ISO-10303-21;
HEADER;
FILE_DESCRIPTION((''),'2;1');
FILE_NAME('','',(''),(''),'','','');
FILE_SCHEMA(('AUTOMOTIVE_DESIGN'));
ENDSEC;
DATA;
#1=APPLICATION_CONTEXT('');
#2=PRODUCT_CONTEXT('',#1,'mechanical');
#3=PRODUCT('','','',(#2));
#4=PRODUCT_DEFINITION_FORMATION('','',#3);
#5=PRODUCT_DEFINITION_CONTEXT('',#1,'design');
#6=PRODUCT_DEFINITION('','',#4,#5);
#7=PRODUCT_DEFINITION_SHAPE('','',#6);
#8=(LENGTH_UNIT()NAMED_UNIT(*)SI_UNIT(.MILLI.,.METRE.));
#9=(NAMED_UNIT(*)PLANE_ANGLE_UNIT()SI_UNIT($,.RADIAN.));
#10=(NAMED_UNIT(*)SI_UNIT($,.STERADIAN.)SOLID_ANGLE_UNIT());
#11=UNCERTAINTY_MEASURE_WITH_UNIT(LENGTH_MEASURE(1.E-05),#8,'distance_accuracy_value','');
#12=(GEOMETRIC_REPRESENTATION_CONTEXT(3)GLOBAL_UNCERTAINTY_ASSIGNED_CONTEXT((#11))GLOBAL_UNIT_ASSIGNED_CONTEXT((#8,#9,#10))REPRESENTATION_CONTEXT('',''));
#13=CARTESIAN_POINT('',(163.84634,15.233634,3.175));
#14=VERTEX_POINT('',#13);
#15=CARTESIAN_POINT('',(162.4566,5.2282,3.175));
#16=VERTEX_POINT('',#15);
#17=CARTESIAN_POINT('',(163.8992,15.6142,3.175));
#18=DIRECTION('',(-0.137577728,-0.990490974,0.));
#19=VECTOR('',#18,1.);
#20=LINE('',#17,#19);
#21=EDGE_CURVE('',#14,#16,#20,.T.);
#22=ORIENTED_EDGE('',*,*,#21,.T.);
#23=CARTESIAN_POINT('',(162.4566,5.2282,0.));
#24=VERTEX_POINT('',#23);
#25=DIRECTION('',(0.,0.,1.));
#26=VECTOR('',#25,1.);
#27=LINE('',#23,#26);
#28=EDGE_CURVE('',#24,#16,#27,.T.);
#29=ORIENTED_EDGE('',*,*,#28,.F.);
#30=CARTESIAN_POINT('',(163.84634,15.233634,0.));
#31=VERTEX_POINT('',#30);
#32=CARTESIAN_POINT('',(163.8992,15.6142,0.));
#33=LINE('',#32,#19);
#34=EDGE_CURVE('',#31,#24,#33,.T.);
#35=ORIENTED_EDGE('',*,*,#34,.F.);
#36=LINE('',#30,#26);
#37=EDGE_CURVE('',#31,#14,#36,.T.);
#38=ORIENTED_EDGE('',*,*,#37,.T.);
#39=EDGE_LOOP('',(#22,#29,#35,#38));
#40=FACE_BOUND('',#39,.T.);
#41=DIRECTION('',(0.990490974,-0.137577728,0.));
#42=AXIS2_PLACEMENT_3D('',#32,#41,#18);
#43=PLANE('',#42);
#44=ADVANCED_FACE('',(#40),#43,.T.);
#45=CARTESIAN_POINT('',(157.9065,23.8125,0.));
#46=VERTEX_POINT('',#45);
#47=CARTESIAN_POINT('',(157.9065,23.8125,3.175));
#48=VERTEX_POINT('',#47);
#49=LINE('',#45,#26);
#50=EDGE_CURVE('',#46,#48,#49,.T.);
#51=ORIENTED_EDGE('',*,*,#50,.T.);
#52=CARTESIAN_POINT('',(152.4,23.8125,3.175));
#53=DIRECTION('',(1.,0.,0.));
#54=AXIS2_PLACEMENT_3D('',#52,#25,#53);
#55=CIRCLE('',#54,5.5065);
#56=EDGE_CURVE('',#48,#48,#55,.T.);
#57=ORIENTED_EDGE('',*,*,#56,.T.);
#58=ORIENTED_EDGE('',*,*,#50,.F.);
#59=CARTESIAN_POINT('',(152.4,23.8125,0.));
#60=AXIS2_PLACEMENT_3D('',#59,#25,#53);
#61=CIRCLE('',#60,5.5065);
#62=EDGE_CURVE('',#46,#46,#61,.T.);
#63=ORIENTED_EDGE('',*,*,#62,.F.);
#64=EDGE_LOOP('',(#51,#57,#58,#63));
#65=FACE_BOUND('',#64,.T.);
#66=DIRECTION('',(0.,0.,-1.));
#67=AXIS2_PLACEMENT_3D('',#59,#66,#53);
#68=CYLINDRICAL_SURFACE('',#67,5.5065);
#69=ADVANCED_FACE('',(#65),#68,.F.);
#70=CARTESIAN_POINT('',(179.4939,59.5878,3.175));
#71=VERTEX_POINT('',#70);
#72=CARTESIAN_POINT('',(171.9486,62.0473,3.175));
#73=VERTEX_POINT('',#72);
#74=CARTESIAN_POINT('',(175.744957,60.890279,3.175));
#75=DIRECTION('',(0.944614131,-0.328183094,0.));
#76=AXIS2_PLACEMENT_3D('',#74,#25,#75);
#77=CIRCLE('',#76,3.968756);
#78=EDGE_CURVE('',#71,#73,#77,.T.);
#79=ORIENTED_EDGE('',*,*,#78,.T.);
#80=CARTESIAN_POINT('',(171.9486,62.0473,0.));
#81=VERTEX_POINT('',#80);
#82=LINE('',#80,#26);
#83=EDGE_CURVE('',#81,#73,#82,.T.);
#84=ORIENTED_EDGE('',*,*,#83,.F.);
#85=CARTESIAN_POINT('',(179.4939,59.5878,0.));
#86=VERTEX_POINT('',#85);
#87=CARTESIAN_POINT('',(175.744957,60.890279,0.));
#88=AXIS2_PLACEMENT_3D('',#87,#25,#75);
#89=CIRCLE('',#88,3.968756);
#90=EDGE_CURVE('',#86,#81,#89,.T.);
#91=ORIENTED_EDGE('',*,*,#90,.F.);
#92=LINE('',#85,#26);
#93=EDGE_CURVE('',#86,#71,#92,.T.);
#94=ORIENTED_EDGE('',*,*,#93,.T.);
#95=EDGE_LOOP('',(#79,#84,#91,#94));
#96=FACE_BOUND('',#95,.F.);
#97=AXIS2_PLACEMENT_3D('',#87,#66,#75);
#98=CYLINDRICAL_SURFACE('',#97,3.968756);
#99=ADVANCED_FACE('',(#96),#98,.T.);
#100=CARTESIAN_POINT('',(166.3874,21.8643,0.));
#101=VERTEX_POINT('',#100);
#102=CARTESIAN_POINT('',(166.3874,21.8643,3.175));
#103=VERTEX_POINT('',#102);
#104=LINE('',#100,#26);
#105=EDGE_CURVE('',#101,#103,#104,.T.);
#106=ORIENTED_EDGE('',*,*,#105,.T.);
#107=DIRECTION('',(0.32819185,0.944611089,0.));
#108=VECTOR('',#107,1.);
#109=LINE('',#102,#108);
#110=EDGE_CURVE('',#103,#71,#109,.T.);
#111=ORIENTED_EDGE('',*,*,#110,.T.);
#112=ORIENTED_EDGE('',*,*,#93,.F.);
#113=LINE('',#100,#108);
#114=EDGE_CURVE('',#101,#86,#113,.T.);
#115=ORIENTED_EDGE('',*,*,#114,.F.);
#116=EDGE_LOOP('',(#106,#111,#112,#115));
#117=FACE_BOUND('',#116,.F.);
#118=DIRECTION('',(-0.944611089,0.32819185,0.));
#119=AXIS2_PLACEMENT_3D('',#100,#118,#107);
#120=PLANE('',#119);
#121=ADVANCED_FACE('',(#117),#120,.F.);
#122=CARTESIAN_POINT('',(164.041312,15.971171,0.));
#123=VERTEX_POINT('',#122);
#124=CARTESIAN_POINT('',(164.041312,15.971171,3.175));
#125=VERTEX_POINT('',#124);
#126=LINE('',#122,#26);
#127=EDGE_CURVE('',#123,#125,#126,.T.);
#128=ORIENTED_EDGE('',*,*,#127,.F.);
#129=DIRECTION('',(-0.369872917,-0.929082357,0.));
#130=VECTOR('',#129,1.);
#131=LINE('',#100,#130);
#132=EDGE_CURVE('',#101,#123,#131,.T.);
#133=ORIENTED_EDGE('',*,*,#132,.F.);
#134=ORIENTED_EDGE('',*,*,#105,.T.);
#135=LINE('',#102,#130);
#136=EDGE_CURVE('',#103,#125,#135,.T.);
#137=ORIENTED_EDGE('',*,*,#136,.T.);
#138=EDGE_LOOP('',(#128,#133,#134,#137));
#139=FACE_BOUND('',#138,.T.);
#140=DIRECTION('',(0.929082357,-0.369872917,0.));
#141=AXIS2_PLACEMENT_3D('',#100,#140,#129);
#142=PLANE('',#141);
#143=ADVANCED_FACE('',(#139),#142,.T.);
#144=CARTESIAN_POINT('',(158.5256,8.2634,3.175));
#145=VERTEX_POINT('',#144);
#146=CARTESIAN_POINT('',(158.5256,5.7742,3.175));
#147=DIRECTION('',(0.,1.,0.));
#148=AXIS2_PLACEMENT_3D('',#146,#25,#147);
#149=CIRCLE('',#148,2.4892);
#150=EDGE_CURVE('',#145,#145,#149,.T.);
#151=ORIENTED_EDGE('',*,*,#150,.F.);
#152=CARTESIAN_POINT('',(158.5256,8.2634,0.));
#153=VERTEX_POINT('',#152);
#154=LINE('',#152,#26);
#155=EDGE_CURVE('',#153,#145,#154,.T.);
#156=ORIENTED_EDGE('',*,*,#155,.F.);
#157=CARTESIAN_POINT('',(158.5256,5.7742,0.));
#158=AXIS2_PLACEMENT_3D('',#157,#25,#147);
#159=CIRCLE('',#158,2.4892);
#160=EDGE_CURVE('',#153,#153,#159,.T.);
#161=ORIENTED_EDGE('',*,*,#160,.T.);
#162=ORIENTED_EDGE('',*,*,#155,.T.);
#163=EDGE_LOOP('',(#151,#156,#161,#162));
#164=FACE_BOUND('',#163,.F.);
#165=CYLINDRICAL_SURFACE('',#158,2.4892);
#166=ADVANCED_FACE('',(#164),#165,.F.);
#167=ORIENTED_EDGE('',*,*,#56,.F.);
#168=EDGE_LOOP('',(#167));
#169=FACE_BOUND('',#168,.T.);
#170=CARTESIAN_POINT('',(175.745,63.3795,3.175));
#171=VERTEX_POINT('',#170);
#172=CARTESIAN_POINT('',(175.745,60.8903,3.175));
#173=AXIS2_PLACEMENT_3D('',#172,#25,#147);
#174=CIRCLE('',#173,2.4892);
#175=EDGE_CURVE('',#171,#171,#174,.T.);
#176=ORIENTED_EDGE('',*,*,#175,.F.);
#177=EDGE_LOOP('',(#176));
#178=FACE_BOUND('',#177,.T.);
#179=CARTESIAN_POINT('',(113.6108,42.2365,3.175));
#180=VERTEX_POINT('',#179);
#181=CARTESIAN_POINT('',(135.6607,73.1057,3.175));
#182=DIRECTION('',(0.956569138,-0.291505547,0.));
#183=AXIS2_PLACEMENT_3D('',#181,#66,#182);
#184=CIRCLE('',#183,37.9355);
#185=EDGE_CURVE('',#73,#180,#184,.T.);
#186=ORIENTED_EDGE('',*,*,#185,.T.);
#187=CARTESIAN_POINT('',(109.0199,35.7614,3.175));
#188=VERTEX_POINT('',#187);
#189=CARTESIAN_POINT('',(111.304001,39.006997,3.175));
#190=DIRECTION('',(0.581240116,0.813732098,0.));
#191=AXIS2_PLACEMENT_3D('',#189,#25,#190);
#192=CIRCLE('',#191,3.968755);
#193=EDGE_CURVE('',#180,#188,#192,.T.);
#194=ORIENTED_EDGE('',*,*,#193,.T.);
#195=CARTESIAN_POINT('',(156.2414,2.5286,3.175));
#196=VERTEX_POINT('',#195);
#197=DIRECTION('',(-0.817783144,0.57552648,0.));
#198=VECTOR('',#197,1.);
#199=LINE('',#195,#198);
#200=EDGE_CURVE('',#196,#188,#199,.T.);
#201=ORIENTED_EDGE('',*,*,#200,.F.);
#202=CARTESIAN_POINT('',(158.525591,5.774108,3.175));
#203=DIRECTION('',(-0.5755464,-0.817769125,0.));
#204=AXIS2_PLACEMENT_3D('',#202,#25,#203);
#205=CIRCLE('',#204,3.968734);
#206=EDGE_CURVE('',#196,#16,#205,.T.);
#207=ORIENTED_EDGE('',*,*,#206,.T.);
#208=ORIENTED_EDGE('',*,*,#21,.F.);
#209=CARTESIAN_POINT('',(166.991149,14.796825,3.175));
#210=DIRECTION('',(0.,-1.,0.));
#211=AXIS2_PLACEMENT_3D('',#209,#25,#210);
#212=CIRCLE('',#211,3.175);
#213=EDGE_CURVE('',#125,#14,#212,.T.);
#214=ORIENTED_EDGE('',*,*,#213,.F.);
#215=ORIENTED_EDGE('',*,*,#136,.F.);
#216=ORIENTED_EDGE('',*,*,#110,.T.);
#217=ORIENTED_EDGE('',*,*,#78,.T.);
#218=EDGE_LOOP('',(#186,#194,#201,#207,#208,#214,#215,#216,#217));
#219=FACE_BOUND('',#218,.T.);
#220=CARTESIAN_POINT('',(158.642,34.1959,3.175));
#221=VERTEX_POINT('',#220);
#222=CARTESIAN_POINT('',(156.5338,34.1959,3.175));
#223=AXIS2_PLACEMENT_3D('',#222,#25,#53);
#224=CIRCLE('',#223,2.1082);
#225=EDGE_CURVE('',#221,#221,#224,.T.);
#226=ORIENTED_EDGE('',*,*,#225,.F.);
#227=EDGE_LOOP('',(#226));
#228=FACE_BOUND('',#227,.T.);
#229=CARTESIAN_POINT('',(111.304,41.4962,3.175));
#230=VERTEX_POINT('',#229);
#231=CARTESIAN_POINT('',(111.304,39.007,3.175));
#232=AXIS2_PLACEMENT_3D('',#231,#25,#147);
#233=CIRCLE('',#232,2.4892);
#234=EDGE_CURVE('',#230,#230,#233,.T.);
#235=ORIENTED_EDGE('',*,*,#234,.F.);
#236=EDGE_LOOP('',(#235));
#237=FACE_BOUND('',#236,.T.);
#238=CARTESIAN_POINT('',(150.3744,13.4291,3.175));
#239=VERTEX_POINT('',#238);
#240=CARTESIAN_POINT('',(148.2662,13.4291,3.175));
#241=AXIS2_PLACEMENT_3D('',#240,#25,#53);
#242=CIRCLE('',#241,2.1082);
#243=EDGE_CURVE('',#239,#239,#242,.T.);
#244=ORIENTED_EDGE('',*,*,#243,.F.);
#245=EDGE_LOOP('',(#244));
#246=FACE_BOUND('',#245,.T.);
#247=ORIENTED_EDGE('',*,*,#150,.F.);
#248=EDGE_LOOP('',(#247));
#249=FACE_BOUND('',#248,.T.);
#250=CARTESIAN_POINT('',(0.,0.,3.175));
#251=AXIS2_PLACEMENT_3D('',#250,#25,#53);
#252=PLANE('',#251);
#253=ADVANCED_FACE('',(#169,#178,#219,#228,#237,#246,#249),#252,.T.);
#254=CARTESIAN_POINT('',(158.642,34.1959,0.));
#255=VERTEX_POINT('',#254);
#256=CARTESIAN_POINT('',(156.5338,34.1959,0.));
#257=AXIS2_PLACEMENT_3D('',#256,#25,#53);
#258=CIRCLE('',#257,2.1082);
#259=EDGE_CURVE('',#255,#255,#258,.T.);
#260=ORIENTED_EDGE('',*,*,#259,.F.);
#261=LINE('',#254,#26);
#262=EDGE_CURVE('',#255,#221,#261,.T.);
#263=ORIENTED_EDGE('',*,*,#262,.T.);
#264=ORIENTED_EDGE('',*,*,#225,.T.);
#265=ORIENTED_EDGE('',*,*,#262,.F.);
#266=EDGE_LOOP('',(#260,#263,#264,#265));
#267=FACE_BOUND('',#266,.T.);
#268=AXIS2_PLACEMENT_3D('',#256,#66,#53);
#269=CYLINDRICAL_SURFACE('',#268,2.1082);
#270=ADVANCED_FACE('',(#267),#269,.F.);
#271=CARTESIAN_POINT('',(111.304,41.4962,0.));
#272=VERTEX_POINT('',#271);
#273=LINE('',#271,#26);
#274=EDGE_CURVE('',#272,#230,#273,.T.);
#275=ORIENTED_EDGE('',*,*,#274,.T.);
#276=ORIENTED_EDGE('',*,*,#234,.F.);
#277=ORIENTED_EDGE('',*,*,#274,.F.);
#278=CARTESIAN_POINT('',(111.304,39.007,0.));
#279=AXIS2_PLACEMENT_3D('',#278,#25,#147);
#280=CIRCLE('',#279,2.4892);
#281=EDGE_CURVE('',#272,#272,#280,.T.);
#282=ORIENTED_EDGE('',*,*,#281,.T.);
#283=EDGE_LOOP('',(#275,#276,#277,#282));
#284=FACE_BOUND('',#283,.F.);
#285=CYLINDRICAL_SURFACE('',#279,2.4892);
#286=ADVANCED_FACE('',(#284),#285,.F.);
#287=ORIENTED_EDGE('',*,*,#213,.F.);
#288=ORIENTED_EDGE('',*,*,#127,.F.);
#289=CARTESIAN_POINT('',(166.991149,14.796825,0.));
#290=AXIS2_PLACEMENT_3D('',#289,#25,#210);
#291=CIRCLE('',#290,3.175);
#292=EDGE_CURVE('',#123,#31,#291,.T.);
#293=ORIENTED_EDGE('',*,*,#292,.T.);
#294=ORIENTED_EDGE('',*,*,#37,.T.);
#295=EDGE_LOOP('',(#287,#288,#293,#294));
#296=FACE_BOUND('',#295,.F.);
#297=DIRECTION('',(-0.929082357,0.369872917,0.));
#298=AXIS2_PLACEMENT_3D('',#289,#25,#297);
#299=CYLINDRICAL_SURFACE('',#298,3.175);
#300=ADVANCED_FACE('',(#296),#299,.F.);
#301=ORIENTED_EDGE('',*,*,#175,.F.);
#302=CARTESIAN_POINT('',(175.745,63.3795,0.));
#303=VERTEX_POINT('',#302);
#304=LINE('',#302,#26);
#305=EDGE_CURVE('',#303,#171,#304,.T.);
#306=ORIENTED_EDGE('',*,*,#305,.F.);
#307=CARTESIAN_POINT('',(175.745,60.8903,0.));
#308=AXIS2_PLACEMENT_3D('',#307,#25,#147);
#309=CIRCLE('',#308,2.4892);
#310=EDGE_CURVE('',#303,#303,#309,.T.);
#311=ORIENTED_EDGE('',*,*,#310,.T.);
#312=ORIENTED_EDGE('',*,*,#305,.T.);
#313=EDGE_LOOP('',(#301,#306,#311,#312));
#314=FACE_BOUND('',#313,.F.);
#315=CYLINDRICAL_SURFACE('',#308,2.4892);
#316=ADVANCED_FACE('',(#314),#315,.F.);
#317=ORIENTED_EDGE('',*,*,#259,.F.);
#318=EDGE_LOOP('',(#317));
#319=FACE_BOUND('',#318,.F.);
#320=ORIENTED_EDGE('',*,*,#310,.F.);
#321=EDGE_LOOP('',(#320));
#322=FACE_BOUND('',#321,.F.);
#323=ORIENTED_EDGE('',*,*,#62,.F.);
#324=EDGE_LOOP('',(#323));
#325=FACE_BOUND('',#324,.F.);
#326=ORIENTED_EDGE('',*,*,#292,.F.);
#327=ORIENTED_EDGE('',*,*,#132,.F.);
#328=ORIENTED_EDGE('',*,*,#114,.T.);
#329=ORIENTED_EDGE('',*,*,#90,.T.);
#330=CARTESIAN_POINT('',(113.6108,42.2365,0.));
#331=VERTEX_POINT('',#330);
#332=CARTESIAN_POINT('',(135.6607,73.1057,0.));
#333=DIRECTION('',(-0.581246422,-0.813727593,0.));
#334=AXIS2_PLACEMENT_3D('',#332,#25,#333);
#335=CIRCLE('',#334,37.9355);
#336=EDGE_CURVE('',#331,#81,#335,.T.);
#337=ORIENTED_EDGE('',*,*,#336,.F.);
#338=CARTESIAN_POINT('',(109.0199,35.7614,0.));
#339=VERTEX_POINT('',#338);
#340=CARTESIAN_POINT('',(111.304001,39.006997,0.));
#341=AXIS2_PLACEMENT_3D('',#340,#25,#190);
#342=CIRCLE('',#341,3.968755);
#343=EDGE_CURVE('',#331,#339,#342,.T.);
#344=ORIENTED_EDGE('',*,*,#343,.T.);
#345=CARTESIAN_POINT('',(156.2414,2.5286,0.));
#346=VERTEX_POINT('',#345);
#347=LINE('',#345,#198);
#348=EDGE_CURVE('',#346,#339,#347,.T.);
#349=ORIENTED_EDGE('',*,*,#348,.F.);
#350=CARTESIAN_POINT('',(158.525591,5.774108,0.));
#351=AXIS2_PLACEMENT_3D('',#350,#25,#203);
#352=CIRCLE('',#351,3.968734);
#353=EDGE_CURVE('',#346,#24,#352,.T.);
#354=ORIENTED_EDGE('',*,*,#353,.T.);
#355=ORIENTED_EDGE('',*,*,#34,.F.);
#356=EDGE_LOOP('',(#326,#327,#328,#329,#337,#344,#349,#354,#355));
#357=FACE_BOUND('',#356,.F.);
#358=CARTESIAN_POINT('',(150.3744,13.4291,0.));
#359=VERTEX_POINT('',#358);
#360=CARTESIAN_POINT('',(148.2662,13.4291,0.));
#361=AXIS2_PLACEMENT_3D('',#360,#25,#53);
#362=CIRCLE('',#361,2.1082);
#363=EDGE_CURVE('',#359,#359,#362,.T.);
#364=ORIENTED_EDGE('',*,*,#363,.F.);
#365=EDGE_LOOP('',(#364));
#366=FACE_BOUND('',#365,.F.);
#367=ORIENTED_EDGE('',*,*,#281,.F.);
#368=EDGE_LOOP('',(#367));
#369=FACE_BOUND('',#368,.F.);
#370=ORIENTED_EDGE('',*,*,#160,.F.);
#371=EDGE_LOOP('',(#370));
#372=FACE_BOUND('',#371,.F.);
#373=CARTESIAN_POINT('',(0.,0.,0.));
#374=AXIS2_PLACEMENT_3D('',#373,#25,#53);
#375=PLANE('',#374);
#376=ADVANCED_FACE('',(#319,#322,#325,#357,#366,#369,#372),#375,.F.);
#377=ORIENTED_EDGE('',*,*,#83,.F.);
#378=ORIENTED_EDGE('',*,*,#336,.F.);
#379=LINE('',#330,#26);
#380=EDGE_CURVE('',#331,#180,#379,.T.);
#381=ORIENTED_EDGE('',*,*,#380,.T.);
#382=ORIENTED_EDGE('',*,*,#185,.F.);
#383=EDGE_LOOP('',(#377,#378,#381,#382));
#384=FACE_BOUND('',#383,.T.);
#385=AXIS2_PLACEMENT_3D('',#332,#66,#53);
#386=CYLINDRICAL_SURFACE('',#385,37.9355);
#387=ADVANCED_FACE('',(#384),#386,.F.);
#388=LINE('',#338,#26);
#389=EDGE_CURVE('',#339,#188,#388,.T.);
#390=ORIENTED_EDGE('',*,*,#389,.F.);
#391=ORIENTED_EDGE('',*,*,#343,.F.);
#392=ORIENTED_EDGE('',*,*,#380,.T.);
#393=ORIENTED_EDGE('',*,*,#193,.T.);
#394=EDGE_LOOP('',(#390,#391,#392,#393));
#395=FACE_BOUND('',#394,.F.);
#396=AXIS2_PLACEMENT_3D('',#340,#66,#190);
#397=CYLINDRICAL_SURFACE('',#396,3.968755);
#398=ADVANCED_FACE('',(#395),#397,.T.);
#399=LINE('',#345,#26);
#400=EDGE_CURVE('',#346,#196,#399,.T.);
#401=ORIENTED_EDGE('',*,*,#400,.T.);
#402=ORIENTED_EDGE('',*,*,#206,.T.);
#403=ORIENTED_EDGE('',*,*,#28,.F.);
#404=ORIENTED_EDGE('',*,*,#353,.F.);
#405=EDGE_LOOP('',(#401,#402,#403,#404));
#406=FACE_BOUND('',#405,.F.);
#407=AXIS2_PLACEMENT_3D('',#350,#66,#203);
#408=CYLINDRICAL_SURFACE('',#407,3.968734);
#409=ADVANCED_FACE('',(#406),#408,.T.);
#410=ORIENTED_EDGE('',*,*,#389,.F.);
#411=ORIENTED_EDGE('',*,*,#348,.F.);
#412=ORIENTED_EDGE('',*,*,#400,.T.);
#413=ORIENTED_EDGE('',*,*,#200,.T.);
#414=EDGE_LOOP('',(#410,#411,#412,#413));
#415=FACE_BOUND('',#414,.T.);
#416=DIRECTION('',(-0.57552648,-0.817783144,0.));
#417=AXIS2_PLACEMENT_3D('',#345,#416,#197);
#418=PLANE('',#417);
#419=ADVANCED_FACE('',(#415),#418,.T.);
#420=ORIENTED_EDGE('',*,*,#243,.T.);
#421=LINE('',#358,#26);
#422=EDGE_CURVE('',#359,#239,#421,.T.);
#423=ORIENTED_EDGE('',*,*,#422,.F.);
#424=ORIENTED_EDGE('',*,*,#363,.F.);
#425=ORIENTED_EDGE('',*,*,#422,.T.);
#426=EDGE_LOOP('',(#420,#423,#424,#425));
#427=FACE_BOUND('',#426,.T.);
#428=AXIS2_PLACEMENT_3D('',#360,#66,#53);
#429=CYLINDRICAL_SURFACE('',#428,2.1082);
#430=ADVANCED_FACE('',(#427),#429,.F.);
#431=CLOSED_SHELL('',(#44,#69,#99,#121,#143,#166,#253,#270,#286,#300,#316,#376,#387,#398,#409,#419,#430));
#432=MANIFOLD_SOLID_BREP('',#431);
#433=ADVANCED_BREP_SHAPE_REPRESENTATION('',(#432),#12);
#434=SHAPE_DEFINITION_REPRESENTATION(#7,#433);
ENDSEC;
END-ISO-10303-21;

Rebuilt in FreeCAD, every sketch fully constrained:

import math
import FreeCAD as App
import Part
import Sketcher
from FreeCAD import Vector
Q = App.Units.Quantity


def edges_at(feature, points):
    """Names of the edges that pass closest to the given points."""
    edges = feature.Shape.Edges
    near = lambda p: min(range(len(edges)), key=lambda i: edges[i].distToShape(Part.Vertex(*p))[0])
    return sorted({f"Edge{near(p) + 1}" for p in points})

doc = App.newDocument("Part")
body = doc.addObject("PartDesign::Body", "Body")

sketch1 = doc.addObject("Sketcher::SketchObject", "Sketch")
body.addObject(sketch1)
sketch1.AttachmentSupport = (doc.XY_Plane, [""])
sketch1.MapMode = "FlatFace"
sketch1.addGeometry([
    Part.LineSegment(Vector(163.8992, 15.6142, 0), Vector(166.3874, 21.8643, 0)),
    Part.LineSegment(Vector(166.3874, 21.8643, 0), Vector(179.4939, 59.5878, 0)),
    Part.ArcOfCircle(Part.Circle(Vector(175.745, 60.8903, 0), Vector(0, 0, 1), 3.968722), math.radians(-19.159029), math.radians(163.050749)),
    Part.ArcOfCircle(Part.Circle(Vector(135.6607, 73.1057, 0), Vector(0, 0, 1), 37.9355), math.radians(-125.538257), math.radians(-16.948112)),
    Part.ArcOfCircle(Part.Circle(Vector(111.304, 39.007, 0), Vector(0, 0, 1), 3.968753), math.radians(54.462154), math.radians(234.863927)),
    Part.LineSegment(Vector(109.0199, 35.7614, 0), Vector(156.2414, 2.5286, 0)),
    Part.ArcOfCircle(Part.Circle(Vector(158.5256, 5.7742, 0), Vector(0, 0, 1), 3.968737), math.radians(-125.137254), math.radians(-7.90756)),
    Part.LineSegment(Vector(162.4566, 5.2282, 0), Vector(163.8992, 15.6142, 0)),
    Part.Circle(Vector(148.2662, 13.4291, 0), Vector(0, 0, 1), 2.1082),
    Part.Circle(Vector(152.4, 23.8125, 0), Vector(0, 0, 1), 5.5065),
    Part.Circle(Vector(156.5338, 34.1959, 0), Vector(0, 0, 1), 2.1082),
], False)
sketch1.addConstraint([
    Sketcher.Constraint("Coincident", 0, 2, 1, 1),
    Sketcher.Constraint("Tangent", 1, 2, 2, 1),
    Sketcher.Constraint("Tangent", 2, 2, 3, 2),
    Sketcher.Constraint("Tangent", 3, 1, 4, 1),
    Sketcher.Constraint("Tangent", 4, 2, 5, 1),
    Sketcher.Constraint("Tangent", 5, 2, 6, 1),
    Sketcher.Constraint("Tangent", 6, 2, 7, 1),
    Sketcher.Constraint("Coincident", 7, 2, 0, 1),
    Sketcher.Constraint("Equal", 2, 4),
    Sketcher.Constraint("Equal", 4, 6),
    Sketcher.Constraint("Equal", 8, 10),
    Sketcher.Constraint("Diameter", 8, Q("0.166 in")),
    Sketcher.Constraint("DistanceX", -1, 1, 9, 3, Q("6 in")),
    Sketcher.Constraint("Radius", 2, Q("0.156248 in")),
    Sketcher.Constraint("Diameter", 9, 11.013),
    Sketcher.Constraint("DistanceY", -1, 1, 9, 3, Q("0.9375 in")),
    Sketcher.Constraint("Angle", 1, Q("70.841 deg")),
    Sketcher.Constraint("Radius", 3, 37.9355),
    Sketcher.Constraint("DistanceX", 3, 3, 2, 3, Q("1.578122 in")),
    Sketcher.Constraint("DistanceY", 8, 3, 4, 3, Q("1.007 in")),
    Sketcher.Constraint("DistanceX", 0, 2, 1, 2, Q("0.516 in")),
    Sketcher.Constraint("DistanceX", -1, 1, 2, 3, Q("6.9191 in")),
    Sketcher.Constraint("DistanceY", -1, 1, 4, 3, Q("1.5357 in")),
    Sketcher.Constraint("DistanceY", -1, 1, 10, 3, Q("1.3463 in")),
    Sketcher.Constraint("DistanceY", -1, 1, 0, 2, Q("0.8608 in")),
    Sketcher.Constraint("DistanceX", 3, 3, 6, 3, Q("0.9002 in")),
    Sketcher.Constraint("DistanceX", 4, 3, 8, 3, Q("1.4552 in")),
    Sketcher.Constraint("DistanceX", 8, 3, 10, 3, Q("0.3255 in")),
    Sketcher.Constraint("DistanceX", 5, 2, 10, 3, Q("0.0115 in")),
    Sketcher.Constraint("DistanceY", 6, 2, 6, 3, Q("0.0215 in")),
    Sketcher.Constraint("DistanceX", 6, 2, 7, 2, Q("0.0568 in")),
])
pad1 = doc.addObject("PartDesign::Pad", "Pad")
body.addObject(pad1)
pad1.Profile = sketch1
pad1.Length = Q("0.125 in")

sketch2 = doc.addObject("Sketcher::SketchObject", "Sketch001")
body.addObject(sketch2)
sketch2.AttachmentSupport = (doc.XY_Plane, [""])
sketch2.MapMode = "FlatFace"
sketch2.addGeometry([
    Part.Circle(Vector(81.0012, 61.9895, 0), Vector(0, 0, 1), 2.4892),
    Part.Circle(Vector(185.7862, 97.5731, 0), Vector(0, 0, 1), 2.4892),
    Part.Circle(Vector(127.6738, 96.6252, 0), Vector(0, 0, 1), 2.4892),
    Part.Circle(Vector(111.304, 39.007, 0), Vector(0, 0, 1), 2.4892),
    Part.Circle(Vector(175.745, 60.8903, 0), Vector(0, 0, 1), 2.4892),
    Part.Circle(Vector(158.5256, 5.7742, 0), Vector(0, 0, 1), 2.4892),
], False)
sketch2.addConstraint([
    Sketcher.Constraint("Equal", 0, 1),
    Sketcher.Constraint("Equal", 1, 2),
    Sketcher.Constraint("Equal", 2, 3),
    Sketcher.Constraint("Equal", 3, 4),
    Sketcher.Constraint("Equal", 4, 5),
    Sketcher.Constraint("Diameter", 0, Q("0.196 in")),
    Sketcher.Constraint("DistanceY", -1, 1, 3, 3, Q("1.5357 in")),
    Sketcher.Constraint("DistanceX", -1, 1, 4, 3, Q("6.9191 in")),
    Sketcher.Constraint("DistanceX", 0, 3, 1, 3, Q("4.1254 in")),
    Sketcher.Constraint("DistanceX", 2, 3, 1, 3, Q("2.2879 in")),
    Sketcher.Constraint("DistanceY", 0, 3, 2, 3, Q("1.3636 in")),
    Sketcher.Constraint("DistanceY", 4, 3, 1, 3, Q("1.4442 in")),
    Sketcher.Constraint("DistanceY", 5, 3, 0, 3, Q("2.2132 in")),
    Sketcher.Constraint("DistanceX", -1, 1, 0, 3, 81.0012),
    Sketcher.Constraint("DistanceY", -1, 1, 0, 3, 61.9895),
    Sketcher.Constraint("DistanceY", -1, 1, 1, 3, 97.573),
    Sketcher.Constraint("DistanceX", -1, 1, 3, 3, 111.304),
    Sketcher.Constraint("DistanceX", -1, 1, 5, 3, 158.5256),
])
doc.recompute()
hole = doc.addObject("PartDesign::Hole", "Hole")
body.addObject(hole)
hole.Profile = sketch2
hole.ThreadType = "None"
hole.Diameter = Q("0.196 in")
hole.DepthType = "ThroughAll"
hole.Reversed = True
doc.recompute()

fillet = doc.addObject("PartDesign::Fillet", "Fillet")
body.addObject(fillet)
fillet.Base = (hole, edges_at(hole, [(166.387, 21.864, 1.587), (163.899, 15.614, 1.587)]))
fillet.Radius = Q("0.125 in")

doc.recompute()
